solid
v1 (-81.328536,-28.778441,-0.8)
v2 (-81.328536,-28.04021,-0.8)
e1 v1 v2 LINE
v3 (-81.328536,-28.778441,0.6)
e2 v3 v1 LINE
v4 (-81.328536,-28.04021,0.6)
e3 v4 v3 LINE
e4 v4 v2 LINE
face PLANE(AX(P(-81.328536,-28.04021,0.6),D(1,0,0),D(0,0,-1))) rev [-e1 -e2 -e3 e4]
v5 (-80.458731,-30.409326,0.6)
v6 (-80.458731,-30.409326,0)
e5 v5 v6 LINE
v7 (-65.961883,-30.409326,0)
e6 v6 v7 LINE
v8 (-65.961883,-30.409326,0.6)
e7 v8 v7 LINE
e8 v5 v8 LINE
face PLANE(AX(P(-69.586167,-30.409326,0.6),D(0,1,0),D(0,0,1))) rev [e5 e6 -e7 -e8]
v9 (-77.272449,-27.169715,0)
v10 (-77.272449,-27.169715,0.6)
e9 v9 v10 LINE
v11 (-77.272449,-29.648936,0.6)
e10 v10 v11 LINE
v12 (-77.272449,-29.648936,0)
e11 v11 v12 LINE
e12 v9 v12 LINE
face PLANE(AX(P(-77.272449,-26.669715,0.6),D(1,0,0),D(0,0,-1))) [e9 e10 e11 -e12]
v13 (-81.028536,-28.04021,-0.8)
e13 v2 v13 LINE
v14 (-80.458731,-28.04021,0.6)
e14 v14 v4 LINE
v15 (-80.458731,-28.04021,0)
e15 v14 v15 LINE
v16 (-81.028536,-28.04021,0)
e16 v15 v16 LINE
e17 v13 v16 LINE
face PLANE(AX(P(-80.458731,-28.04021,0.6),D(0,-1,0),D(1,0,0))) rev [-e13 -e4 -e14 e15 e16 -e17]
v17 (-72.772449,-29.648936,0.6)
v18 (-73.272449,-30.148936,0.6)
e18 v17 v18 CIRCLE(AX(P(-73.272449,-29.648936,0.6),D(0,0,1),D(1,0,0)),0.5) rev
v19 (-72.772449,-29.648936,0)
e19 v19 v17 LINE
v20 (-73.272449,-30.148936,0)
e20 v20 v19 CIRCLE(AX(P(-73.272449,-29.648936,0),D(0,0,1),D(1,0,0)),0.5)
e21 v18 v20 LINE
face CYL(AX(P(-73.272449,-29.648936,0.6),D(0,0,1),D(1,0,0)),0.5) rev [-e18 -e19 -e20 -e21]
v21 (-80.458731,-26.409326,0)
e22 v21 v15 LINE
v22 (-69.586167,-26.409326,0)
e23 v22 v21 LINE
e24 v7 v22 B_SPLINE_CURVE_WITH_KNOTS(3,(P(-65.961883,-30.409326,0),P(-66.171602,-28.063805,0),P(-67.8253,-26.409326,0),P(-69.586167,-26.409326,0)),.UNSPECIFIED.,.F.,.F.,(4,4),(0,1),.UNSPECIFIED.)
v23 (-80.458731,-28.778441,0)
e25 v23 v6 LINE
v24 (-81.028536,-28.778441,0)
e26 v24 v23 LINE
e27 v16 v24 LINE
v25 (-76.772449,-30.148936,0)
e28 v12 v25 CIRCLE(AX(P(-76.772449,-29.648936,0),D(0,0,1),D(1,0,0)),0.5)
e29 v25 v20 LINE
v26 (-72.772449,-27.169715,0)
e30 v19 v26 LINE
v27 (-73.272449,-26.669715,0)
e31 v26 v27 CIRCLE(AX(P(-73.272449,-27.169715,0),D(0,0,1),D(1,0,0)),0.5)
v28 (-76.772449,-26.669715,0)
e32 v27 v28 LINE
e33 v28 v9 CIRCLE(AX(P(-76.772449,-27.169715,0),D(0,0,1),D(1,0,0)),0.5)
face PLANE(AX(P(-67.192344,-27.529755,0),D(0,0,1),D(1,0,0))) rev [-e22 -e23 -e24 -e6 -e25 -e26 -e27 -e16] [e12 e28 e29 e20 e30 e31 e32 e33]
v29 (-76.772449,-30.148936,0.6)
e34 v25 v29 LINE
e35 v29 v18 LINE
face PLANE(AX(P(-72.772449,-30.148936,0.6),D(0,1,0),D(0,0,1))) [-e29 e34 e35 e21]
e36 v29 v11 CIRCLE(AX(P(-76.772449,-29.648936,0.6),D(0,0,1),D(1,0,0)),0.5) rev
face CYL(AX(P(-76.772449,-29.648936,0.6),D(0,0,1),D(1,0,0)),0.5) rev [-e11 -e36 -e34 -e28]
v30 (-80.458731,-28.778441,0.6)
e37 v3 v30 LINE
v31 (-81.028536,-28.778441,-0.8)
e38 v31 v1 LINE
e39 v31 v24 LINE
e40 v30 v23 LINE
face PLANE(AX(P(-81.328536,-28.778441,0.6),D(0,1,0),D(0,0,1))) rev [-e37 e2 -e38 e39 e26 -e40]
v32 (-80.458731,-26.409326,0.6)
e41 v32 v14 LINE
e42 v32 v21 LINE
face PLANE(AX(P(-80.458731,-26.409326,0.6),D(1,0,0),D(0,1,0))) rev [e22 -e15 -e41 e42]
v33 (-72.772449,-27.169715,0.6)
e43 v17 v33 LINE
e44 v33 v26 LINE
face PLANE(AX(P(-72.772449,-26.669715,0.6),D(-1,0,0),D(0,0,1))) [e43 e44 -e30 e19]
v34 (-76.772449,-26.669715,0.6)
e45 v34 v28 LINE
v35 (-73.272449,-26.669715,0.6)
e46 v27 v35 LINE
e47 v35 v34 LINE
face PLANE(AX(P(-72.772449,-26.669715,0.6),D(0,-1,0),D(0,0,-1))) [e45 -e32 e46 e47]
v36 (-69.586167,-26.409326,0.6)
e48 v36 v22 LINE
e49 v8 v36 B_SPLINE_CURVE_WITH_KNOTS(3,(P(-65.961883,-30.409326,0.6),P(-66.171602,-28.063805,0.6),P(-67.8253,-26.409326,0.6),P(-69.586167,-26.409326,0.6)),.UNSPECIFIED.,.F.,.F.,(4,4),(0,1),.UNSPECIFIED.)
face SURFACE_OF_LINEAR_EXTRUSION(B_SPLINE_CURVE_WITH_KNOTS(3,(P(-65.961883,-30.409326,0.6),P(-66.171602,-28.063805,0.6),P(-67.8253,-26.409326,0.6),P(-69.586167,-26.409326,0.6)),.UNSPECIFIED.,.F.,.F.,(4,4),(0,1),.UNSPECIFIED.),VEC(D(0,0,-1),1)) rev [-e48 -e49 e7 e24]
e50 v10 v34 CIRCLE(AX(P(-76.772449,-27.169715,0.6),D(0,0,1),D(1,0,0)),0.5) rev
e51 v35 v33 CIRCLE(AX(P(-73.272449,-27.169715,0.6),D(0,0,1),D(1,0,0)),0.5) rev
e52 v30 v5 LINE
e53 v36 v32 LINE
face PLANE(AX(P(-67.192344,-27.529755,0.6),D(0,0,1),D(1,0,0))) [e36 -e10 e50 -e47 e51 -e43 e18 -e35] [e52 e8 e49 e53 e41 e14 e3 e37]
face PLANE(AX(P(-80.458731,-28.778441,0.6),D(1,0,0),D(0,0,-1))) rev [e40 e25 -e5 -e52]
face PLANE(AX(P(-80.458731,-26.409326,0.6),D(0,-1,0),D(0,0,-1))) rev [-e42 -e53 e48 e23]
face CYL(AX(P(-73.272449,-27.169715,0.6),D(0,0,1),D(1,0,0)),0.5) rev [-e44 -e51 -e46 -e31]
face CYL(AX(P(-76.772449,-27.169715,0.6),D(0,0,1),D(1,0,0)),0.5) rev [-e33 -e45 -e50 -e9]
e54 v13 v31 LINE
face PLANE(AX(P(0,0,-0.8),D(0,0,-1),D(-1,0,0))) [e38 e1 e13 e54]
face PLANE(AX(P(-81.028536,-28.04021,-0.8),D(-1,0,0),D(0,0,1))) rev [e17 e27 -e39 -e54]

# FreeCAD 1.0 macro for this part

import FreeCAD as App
import Part
import Sketcher
Q = App.Units.Quantity


def edges_at(feature, points):
    """Names of the edges that pass closest to the given points."""
    edges = feature.Shape.Edges
    near = lambda p: min(range(len(edges)), key=lambda i: edges[i].distToShape(Part.Vertex(*p))[0])
    return sorted({f"Edge{near(p) + 1}" for p in points})

doc = App.newDocument("Part")
params = doc.addObject("Spreadsheet::Sheet", "Params")
for row, (alias, value) in enumerate([
    ("sketch1_width", "4.5 mm"),
    ("pad1_length", "0.6 mm"),
    ("fillet_radius", "0.5 mm"),
    ("sketch2_width", "0.3 mm"),
    ("pad2_length", "0.8 mm"),
], start=1):
    params.set(f"A{row}", alias)
    params.set(f"B{row}", "=" + value)
    params.setAlias(f"B{row}", alias)

body = doc.addObject("PartDesign::Body", "Body")

sketch1 = doc.addObject("Sketcher::SketchObject", "Sketch")
body.addObject(sketch1)
sketch1.AttachmentSupport = (doc.XY_Plane, [""])
sketch1.MapMode = "FlatFace"
sketch1.addGeometry([
    Part.LineSegment(App.Vector(-69.586167, -26.409326, 0), App.Vector(-80.458731, -26.409326, 0)),
    Part.LineSegment(App.Vector(-80.458731, -26.409326, 0), App.Vector(-80.458731, -28.04021, 0)),
    Part.LineSegment(App.Vector(-80.458731, -28.04021, 0), App.Vector(-81.328536, -28.04021, 0)),
    Part.LineSegment(App.Vector(-81.328536, -28.04021, 0), App.Vector(-81.328536, -28.778441, 0)),
    Part.LineSegment(App.Vector(-81.328536, -28.778441, 0), App.Vector(-80.458731, -28.778441, 0)),
    Part.LineSegment(App.Vector(-80.458731, -28.778441, 0), App.Vector(-80.458731, -30.409326, 0)),
    Part.LineSegment(App.Vector(-80.458731, -30.409326, 0), App.Vector(-65.961883, -30.409326, 0)),
    Part.BSplineCurve([App.Vector(-69.586167, -26.409326, 0), App.Vector(-67.8253, -26.409326, 0), App.Vector(-66.171602, -28.063805, 0), App.Vector(-65.961883, -30.409326, 0)], [4, 4], [0, 1], False, 3, [1, 1, 1, 1], False),
    Part.LineSegment(App.Vector(-77.272449, -30.148936, 0), App.Vector(-77.272449, -26.669715, 0)),
    Part.LineSegment(App.Vector(-77.272449, -26.669715, 0), App.Vector(-72.772449, -26.669715, 0)),
    Part.LineSegment(App.Vector(-72.772449, -26.669715, 0), App.Vector(-72.772449, -30.148936, 0)),
    Part.LineSegment(App.Vector(-72.772449, -30.148936, 0), App.Vector(-77.272449, -30.148936, 0)),
], False)
sketch1.addConstraint([
    Sketcher.Constraint("Block", 7),
    Sketcher.Constraint("Coincident", 0, 2, 1, 1),
    Sketcher.Constraint("Coincident", 1, 2, 2, 1),
    Sketcher.Constraint("Coincident", 2, 2, 3, 1),
    Sketcher.Constraint("Coincident", 3, 2, 4, 1),
    Sketcher.Constraint("Coincident", 4, 2, 5, 1),
    Sketcher.Constraint("Coincident", 5, 2, 6, 1),
    Sketcher.Constraint("Coincident", 6, 2, 7, 2),
    Sketcher.Constraint("Coincident", 7, 1, 0, 1),
    Sketcher.Constraint("Coincident", 8, 2, 9, 1),
    Sketcher.Constraint("Coincident", 9, 2, 10, 1),
    Sketcher.Constraint("Coincident", 10, 2, 11, 1),
    Sketcher.Constraint("Coincident", 11, 2, 8, 1),
    Sketcher.Constraint("Horizontal", 0),
    Sketcher.Constraint("Vertical", 1),
    Sketcher.Constraint("Horizontal", 2),
    Sketcher.Constraint("Vertical", 3),
    Sketcher.Constraint("Horizontal", 4),
    Sketcher.Constraint("Vertical", 5),
    Sketcher.Constraint("Horizontal", 6),
    Sketcher.Constraint("Vertical", 8),
    Sketcher.Constraint("Horizontal", 9),
    Sketcher.Constraint("Vertical", 10),
    Sketcher.Constraint("Horizontal", 11),
    Sketcher.Constraint("Vertical", 1, 2, 4, 2),
    Sketcher.Constraint("Equal", 1, 5),
    Sketcher.Constraint("DistanceX", 9, 1, 9, 2, Q("4.5 mm")),
    Sketcher.Constraint("DistanceX", 6, 1, 6, 2, Q("14.496848 mm")),
    Sketcher.Constraint("DistanceY", 3, 2, 3, 1, Q("0.738231 mm")),
    Sketcher.Constraint("DistanceY", 8, 1, 8, 2, Q("3.47922 mm")),
    Sketcher.Constraint("DistanceX", 2, 2, 2, 1, Q("0.869805 mm")),
    Sketcher.Constraint("DistanceX", 8, 2, -1, 1, Q("77.272449 mm")),
    Sketcher.Constraint("DistanceY", 8, 2, 0, 2, Q("0.26039 mm")),
])
sketch1.setExpression("Constraints[26]", "Params.sketch1_width")
pad1 = doc.addObject("PartDesign::Pad", "Pad")
body.addObject(pad1)
pad1.Profile = sketch1
pad1.setExpression("Length", "Params.pad1_length")
doc.recompute()

fillet = doc.addObject("PartDesign::Fillet", "Fillet")
body.addObject(fillet)
fillet.Base = (pad1, edges_at(pad1, [
    (-77.272, -26.67, 0.3),
    (-77.272, -30.149, 0.3),
    (-72.772, -30.149, 0.3),
    (-72.772, -26.67, 0.3),
]))
fillet.setExpression("Radius", "Params.fillet_radius")

sketch2 = doc.addObject("Sketcher::SketchObject", "Sketch001")
body.addObject(sketch2)
sketch2.AttachmentSupport = (doc.XY_Plane, [""])
sketch2.MapMode = "FlatFace"
sketch2.addGeometry([
    Part.LineSegment(App.Vector(-81.03, -28.04, 0), App.Vector(-81.03, -28.78, 0)),
    Part.LineSegment(App.Vector(-81.03, -28.78, 0), App.Vector(-81.33, -28.78, 0)),
    Part.LineSegment(App.Vector(-81.33, -28.78, 0), App.Vector(-81.33, -28.04, 0)),
    Part.LineSegment(App.Vector(-81.33, -28.04, 0), App.Vector(-81.03, -28.04, 0)),
], False)
sketch2.addConstraint([
    Sketcher.Constraint("Coincident", 0, 2, 1, 1),
    Sketcher.Constraint("Coincident", 1, 2, 2, 1),
    Sketcher.Constraint("Coincident", 2, 2, 3, 1),
    Sketcher.Constraint("Coincident", 3, 2, 0, 1),
    Sketcher.Constraint("Vertical", 0),
    Sketcher.Constraint("Horizontal", 1),
    Sketcher.Constraint("Vertical", 2),
    Sketcher.Constraint("Horizontal", 3),
    Sketcher.Constraint("DistanceX", 1, 2, 1, 1, Q("0.3 mm")),
    Sketcher.Constraint("DistanceY", 0, 2, 0, 1, Q("0.738231 mm")),
    Sketcher.Constraint("DistanceY", 0, 2, -1, 1, Q("28.778441 mm")),
    Sketcher.Constraint("DistanceX", 0, 2, -1, 1, Q("81.028536 mm")),
])
sketch2.setExpression("Constraints[8]", "Params.sketch2_width")
pad2 = doc.addObject("PartDesign::Pad", "Pad001")
body.addObject(pad2)
pad2.Profile = sketch2
pad2.setExpression("Length", "Params.pad2_length")
pad2.Reversed = True

doc.recompute()
